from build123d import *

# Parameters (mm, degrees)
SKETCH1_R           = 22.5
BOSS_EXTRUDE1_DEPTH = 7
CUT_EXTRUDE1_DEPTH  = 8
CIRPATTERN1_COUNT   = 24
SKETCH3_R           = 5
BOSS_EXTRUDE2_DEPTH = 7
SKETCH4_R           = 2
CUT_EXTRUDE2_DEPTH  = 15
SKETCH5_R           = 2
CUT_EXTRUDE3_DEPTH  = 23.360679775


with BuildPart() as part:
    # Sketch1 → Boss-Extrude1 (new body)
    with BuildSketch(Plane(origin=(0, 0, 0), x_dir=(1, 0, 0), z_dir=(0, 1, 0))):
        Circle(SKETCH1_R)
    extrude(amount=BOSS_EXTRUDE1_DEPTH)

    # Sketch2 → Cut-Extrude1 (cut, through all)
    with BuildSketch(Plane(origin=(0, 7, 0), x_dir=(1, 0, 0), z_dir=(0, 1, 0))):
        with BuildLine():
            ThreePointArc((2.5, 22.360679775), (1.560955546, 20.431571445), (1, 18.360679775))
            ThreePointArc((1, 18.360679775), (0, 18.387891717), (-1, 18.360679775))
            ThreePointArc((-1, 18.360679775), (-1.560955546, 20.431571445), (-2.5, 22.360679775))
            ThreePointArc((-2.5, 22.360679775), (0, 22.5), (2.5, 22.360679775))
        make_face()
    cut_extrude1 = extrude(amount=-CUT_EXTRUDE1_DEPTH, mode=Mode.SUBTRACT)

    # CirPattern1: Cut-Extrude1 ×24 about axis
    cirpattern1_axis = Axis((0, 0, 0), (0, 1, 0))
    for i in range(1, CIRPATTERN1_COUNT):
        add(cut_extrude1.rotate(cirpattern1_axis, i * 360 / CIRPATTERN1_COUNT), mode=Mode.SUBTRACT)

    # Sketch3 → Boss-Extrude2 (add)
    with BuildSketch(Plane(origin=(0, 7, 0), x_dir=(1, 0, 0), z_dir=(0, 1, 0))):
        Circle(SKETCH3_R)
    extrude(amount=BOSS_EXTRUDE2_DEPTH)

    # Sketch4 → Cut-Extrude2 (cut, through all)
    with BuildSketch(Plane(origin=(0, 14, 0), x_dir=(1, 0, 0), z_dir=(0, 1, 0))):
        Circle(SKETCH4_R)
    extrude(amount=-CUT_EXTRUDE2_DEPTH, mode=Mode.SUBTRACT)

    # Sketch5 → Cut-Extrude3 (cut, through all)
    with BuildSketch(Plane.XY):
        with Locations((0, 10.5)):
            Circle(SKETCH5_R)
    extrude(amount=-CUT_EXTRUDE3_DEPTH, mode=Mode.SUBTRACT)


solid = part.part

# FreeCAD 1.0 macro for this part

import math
import FreeCAD as App
import Part
import Sketcher

V = App.Vector

doc = App.newDocument("Part")
body = doc.addObject("PartDesign::Body", "Body")

# Sketch on XZ plane
sketch1 = body.newObject("Sketcher::SketchObject", "Sketch")
sketch1.AttachmentSupport = (doc.getObject("XZ_Plane"), [""])
sketch1.MapMode = "FlatFace"
sketch1.addGeometry(Part.Circle(V(0, 0, 0), V(0, 0, 1), 22.5), False)
sketch1.addConstraint(Sketcher.Constraint("Coincident", 0, 3, -1, 1))
sketch1.addConstraint(Sketcher.Constraint("Diameter", 0, 45.0))
pad1 = body.newObject("PartDesign::Pad", "Pad")
pad1.Profile = sketch1
pad1.Length = 7
pad1.Reversed = True

# Sketch on XZ plane
sketch2 = body.newObject("Sketcher::SketchObject", "Sketch001")
sketch2.AttachmentSupport = (doc.getObject("XZ_Plane"), [""])
sketch2.MapMode = "FlatFace"
sketch2.AttachmentOffset = App.Placement(V(0, 0, -7), App.Rotation())
sketch2.addGeometry(Part.ArcOfCircle(Part.Circle(V(12.235, -16.428805, 0), V(0, 0, 1), 11.399884), math.radians(-170.243318), math.radians(-148.644591)), False)
sketch2.addGeometry(Part.ArcOfCircle(Part.Circle(V(0, 0, 0), V(0, 0, 1), 22.5), math.radians(-96.37937), math.radians(-83.62063)), False)
sketch2.addGeometry(Part.ArcOfCircle(Part.Circle(V(-12.235, -16.428805, 0), V(0, 0, 1), 11.399884), math.radians(-31.355409), math.radians(-9.756682)), False)
sketch2.addGeometry(Part.ArcOfCircle(Part.Circle(V(0, 0, 0), V(0, 0, 1), 18.387892), math.radians(-93.11749), math.radians(-86.88251)), False)
sketch2.addConstraint(Sketcher.Constraint("Coincident", 0, 2, 1, 2))
sketch2.addConstraint(Sketcher.Constraint("Coincident", 1, 1, 2, 1))
sketch2.addConstraint(Sketcher.Constraint("Coincident", 2, 2, 3, 1))
sketch2.addConstraint(Sketcher.Constraint("Coincident", 3, 2, 0, 1))
sketch2.addConstraint(Sketcher.Constraint("Coincident", 1, 3, -1, 1))
sketch2.addConstraint(Sketcher.Constraint("Coincident", 3, 3, -1, 1))
sketch2.addConstraint(Sketcher.Constraint("Equal", 0, 2))
sketch2.addConstraint(Sketcher.Constraint("Symmetric", 0, 3, 2, 3, -2))
sketch2.addConstraint(Sketcher.Constraint("Radius", 1, 22.5))
sketch2.addConstraint(Sketcher.Constraint("DistanceX", 2, 2, -1, 1, 1.0))
sketch2.addConstraint(Sketcher.Constraint("DistanceX", 1, 1, 0, 2, 5.0))
sketch2.addConstraint(Sketcher.Constraint("DistanceY", 1, 1, 2, 2, 4.0))
sketch2.addConstraint(Sketcher.Constraint("DistanceX", 2, 3, 0, 3, 24.47))
pocket1 = body.newObject("PartDesign::Pocket", "Pocket")
pocket1.Profile = sketch2
pocket1.Type = "ThroughAll"
pocket1.Reversed = True
doc.recompute()

polarpattern = body.newObject("PartDesign::PolarPattern", "PolarPattern")
polarpattern.Originals = [pocket1]
polarpattern.Axis = (doc.getObject("Y_Axis"), [""])
polarpattern.Angle = 360
polarpattern.Occurrences = 24
body.Tip = polarpattern

# Sketch on XZ plane
sketch3 = body.newObject("Sketcher::SketchObject", "Sketch002")
sketch3.AttachmentSupport = (doc.getObject("XZ_Plane"), [""])
sketch3.MapMode = "FlatFace"
sketch3.AttachmentOffset = App.Placement(V(0, 0, -7), App.Rotation())
sketch3.addGeometry(Part.Circle(V(0, 0, 0), V(0, 0, 1), 5), False)
sketch3.addConstraint(Sketcher.Constraint("Coincident", 0, 3, -1, 1))
sketch3.addConstraint(Sketcher.Constraint("Diameter", 0, 10.0))
pad2 = body.newObject("PartDesign::Pad", "Pad001")
pad2.Profile = sketch3
pad2.Length = 7
pad2.Reversed = True

# Sketch on XZ plane
sketch4 = body.newObject("Sketcher::SketchObject", "Sketch003")
sketch4.AttachmentSupport = (doc.getObject("XZ_Plane"), [""])
sketch4.MapMode = "FlatFace"
sketch4.AttachmentOffset = App.Placement(V(0, 0, -14), App.Rotation())
sketch4.addGeometry(Part.Circle(V(0, 0, 0), V(0, 0, 1), 2), False)
sketch4.addConstraint(Sketcher.Constraint("Coincident", 0, 3, -1, 1))
sketch4.addConstraint(Sketcher.Constraint("Diameter", 0, 4.0))
pocket2 = body.newObject("PartDesign::Pocket", "Pocket001")
pocket2.Profile = sketch4
pocket2.Type = "ThroughAll"
pocket2.Reversed = True

# Sketch on XY plane
sketch5 = body.newObject("Sketcher::SketchObject", "Sketch004")
sketch5.AttachmentSupport = (doc.getObject("XY_Plane"), [""])
sketch5.MapMode = "FlatFace"
sketch5.addGeometry(Part.Circle(V(0, 10.5, 0), V(0, 0, 1), 2), False)
sketch5.addConstraint(Sketcher.Constraint("PointOnObject", 0, 3, -2))
sketch5.addConstraint(Sketcher.Constraint("Diameter", 0, 4.0))
sketch5.addConstraint(Sketcher.Constraint("DistanceY", -1, 1, 0, 3, 10.5))
pocket3 = body.newObject("PartDesign::Pocket", "Pocket002")
pocket3.Profile = sketch5
pocket3.Type = "ThroughAll"

doc.recompute()
